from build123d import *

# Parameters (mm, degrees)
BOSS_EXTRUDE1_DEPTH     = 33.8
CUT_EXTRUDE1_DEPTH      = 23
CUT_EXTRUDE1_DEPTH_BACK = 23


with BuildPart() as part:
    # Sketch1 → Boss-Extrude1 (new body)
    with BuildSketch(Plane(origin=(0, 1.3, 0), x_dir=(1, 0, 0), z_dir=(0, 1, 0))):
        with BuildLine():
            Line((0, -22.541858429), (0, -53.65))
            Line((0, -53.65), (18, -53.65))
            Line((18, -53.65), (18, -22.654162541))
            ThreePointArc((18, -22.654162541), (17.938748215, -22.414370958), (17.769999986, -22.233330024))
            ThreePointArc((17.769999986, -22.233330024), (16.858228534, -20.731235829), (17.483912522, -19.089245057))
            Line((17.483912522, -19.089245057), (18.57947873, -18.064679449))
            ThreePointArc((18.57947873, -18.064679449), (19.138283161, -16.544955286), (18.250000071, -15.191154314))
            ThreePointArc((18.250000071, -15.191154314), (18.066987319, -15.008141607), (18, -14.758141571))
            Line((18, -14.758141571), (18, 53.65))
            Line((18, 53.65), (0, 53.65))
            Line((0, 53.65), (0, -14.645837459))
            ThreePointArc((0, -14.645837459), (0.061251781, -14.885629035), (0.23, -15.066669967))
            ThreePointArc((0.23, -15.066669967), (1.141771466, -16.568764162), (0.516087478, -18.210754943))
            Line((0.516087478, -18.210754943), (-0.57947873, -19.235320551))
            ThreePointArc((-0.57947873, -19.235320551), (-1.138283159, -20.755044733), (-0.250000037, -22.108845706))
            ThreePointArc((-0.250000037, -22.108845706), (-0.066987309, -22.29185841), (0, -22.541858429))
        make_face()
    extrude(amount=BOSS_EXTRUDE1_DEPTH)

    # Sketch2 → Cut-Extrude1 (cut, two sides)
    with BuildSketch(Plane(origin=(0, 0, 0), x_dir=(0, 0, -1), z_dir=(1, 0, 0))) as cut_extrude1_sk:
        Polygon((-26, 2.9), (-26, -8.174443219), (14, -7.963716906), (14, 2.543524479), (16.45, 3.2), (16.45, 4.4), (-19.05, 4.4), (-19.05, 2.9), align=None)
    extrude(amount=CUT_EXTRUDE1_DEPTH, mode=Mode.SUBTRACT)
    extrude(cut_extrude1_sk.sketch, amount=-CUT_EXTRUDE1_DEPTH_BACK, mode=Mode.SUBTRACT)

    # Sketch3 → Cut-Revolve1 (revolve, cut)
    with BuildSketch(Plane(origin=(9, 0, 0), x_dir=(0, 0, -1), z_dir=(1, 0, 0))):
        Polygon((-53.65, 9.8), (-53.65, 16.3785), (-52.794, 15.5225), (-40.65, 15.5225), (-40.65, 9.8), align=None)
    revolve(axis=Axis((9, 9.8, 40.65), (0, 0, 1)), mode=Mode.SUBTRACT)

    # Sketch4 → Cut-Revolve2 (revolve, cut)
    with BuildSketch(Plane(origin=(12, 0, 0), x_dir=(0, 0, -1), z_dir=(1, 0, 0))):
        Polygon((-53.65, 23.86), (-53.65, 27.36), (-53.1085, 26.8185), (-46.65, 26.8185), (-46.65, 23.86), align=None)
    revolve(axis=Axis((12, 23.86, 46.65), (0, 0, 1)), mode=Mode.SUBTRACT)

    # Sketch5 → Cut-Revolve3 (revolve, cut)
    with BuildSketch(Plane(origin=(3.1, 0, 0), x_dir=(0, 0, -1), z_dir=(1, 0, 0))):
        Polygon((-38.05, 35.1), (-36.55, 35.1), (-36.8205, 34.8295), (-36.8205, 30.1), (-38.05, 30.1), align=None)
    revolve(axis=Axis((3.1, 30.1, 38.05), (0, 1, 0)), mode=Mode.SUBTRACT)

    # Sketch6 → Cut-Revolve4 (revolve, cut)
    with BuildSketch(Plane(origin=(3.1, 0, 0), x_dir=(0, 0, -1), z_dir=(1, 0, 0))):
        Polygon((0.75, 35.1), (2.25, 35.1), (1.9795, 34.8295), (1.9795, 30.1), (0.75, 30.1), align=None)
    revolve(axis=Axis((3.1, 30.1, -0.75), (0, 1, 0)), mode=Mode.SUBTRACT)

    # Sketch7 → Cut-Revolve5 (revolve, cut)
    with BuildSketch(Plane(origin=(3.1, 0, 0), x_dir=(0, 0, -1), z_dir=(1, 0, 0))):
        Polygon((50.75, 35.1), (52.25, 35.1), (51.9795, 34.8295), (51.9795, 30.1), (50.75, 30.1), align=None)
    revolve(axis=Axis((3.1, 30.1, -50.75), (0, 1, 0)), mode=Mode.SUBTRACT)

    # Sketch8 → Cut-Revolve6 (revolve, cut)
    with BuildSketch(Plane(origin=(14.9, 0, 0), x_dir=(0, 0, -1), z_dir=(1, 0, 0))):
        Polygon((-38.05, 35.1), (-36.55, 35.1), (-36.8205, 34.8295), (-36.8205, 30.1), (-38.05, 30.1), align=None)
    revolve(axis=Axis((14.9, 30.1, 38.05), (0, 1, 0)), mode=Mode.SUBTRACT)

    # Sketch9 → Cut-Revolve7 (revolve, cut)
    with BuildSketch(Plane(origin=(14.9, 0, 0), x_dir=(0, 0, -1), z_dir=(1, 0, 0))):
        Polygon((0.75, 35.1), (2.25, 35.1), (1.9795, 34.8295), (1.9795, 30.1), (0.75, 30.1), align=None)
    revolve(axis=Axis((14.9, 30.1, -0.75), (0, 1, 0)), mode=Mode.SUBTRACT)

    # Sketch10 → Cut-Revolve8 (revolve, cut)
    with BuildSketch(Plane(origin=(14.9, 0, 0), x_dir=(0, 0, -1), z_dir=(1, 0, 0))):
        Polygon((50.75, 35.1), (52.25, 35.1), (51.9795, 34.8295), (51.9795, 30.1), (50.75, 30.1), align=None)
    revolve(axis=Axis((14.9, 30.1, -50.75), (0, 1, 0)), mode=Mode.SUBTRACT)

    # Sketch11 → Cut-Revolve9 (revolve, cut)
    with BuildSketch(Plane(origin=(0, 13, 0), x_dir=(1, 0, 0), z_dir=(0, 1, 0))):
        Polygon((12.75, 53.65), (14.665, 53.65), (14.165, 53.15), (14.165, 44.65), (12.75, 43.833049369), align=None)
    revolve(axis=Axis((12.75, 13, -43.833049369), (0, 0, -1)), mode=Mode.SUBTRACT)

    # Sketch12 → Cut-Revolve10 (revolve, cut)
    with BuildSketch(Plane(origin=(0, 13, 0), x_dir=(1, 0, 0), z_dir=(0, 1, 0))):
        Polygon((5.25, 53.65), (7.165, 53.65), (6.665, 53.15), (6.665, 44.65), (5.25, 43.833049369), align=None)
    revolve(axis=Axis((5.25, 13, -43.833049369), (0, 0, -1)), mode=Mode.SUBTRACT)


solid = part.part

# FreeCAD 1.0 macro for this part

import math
import FreeCAD as App
import Part
import Sketcher
Q = App.Units.Quantity


def add_polygon(sketch, points):
    """Adds a closed chain of lines whose ends are joined by coincident constraints."""
    first, n = sketch.GeometryCount, len(points)
    for a, b in zip(points, points[1:] + points[:1]):
        sketch.addGeometry(Part.LineSegment(App.Vector(*a, 0), App.Vector(*b, 0)), False)
    for i in range(n):
        sketch.addConstraint(Sketcher.Constraint("Coincident", first + i, 2, first + (i + 1) % n, 1))

doc = App.newDocument("Part")
body = doc.addObject("PartDesign::Body", "Body")

# Sketch on XZ plane
sketch1 = body.newObject("Sketcher::SketchObject", "Sketch")
sketch1.AttachmentSupport = (doc.getObject("XZ_Plane"), [""])
sketch1.MapMode = "FlatFace"
sketch1.AttachmentOffset = App.Placement(App.Vector(0, 0, -1.3), App.Rotation())
sketch1.addGeometry(Part.LineSegment(App.Vector(0, 22.54, 0), App.Vector(0, 53.65, 0)), False)
sketch1.addGeometry(Part.LineSegment(App.Vector(0, 53.65, 0), App.Vector(18, 53.65, 0)), False)
sketch1.addGeometry(Part.LineSegment(App.Vector(18, 53.65, 0), App.Vector(18, 22.65, 0)), False)
sketch1.addGeometry(Part.ArcOfCircle(Part.Circle(App.Vector(17.5, 22.65, 0), App.Vector(0, 0, 1), 0.5), math.radians(-57), math.radians(0)), False)
sketch1.addGeometry(Part.ArcOfCircle(Part.Circle(App.Vector(18.85, 20.55, 0), App.Vector(0, 0, 1), 2), math.radians(123), math.radians(227)), False)
sketch1.addGeometry(Part.LineSegment(App.Vector(17.48, 19.09, 0), App.Vector(18.58, 18.06, 0)), False)
sketch1.addGeometry(Part.ArcOfCircle(Part.Circle(App.Vector(17.35, 16.75, 0), App.Vector(0, 0, 1), 1.8), math.radians(-60), math.radians(47)), False)
sketch1.addGeometry(Part.ArcOfCircle(Part.Circle(App.Vector(18.5, 14.76, 0), App.Vector(0, 0, 1), 0.5), math.radians(120), math.radians(180)), False)
sketch1.addGeometry(Part.LineSegment(App.Vector(18, 14.76, 0), App.Vector(18, -53.65, 0)), False)
sketch1.addGeometry(Part.LineSegment(App.Vector(18, -53.65, 0), App.Vector(0, -53.65, 0)), False)
sketch1.addGeometry(Part.LineSegment(App.Vector(0, -53.65, 0), App.Vector(0, 14.65, 0)), False)
sketch1.addGeometry(Part.ArcOfCircle(Part.Circle(App.Vector(0.5, 14.65, 0), App.Vector(0, 0, 1), 0.5), math.radians(123), math.radians(180)), False)
sketch1.addGeometry(Part.ArcOfCircle(Part.Circle(App.Vector(-0.85, 16.75, 0), App.Vector(0, 0, 1), 2), math.radians(-57), math.radians(47)), False)
sketch1.addGeometry(Part.LineSegment(App.Vector(0.52, 18.21, 0), App.Vector(-0.58, 19.24, 0)), False)
sketch1.addGeometry(Part.ArcOfCircle(Part.Circle(App.Vector(0.65, 20.55, 0), App.Vector(0, 0, 1), 1.8), math.radians(120), math.radians(227)), False)
sketch1.addGeometry(Part.ArcOfCircle(Part.Circle(App.Vector(-0.5, 22.54, 0), App.Vector(0, 0, 1), 0.5), math.radians(-60), math.radians(0)), False)
sketch1.addConstraint(Sketcher.Constraint("Coincident", 0, 2, 1, 1))
sketch1.addConstraint(Sketcher.Constraint("Coincident", 1, 2, 2, 1))
sketch1.addConstraint(Sketcher.Constraint("Tangent", 2, 2, 3, 2))
sketch1.addConstraint(Sketcher.Constraint("Tangent", 3, 1, 4, 1))
sketch1.addConstraint(Sketcher.Constraint("Tangent", 4, 2, 5, 1))
sketch1.addConstraint(Sketcher.Constraint("Tangent", 5, 2, 6, 2))
sketch1.addConstraint(Sketcher.Constraint("Tangent", 6, 1, 7, 1))
sketch1.addConstraint(Sketcher.Constraint("Tangent", 7, 2, 8, 1))
sketch1.addConstraint(Sketcher.Constraint("Coincident", 8, 2, 9, 1))
sketch1.addConstraint(Sketcher.Constraint("Coincident", 9, 2, 10, 1))
sketch1.addConstraint(Sketcher.Constraint("Tangent", 10, 2, 11, 2))
sketch1.addConstraint(Sketcher.Constraint("Tangent", 11, 1, 12, 1))
sketch1.addConstraint(Sketcher.Constraint("Tangent", 12, 2, 13, 1))
sketch1.addConstraint(Sketcher.Constraint("Tangent", 13, 2, 14, 2))
sketch1.addConstraint(Sketcher.Constraint("Tangent", 14, 1, 15, 1))
sketch1.addConstraint(Sketcher.Constraint("Tangent", 15, 2, 0, 1))
sketch1.addConstraint(Sketcher.Constraint("Vertical", 0))
sketch1.addConstraint(Sketcher.Constraint("Horizontal", 1))
sketch1.addConstraint(Sketcher.Constraint("Vertical", 2))
sketch1.addConstraint(Sketcher.Constraint("Vertical", 8))
sketch1.addConstraint(Sketcher.Constraint("Horizontal", 9))
sketch1.addConstraint(Sketcher.Constraint("Vertical", 10))
sketch1.addConstraint(Sketcher.Constraint("Equal", 3, 7))
sketch1.addConstraint(Sketcher.Constraint("Equal", 7, 11))
sketch1.addConstraint(Sketcher.Constraint("Equal", 4, 12))
sketch1.addConstraint(Sketcher.Constraint("Equal", 6, 14))
sketch1.addConstraint(Sketcher.Constraint("Equal", 11, 15))
sketch1.addConstraint(Sketcher.Constraint("Symmetric", 0, 2, 9, 2, -1, 1))
sketch1.addConstraint(Sketcher.Constraint("PointOnObject", 0, 2, -2))
sketch1.addConstraint(Sketcher.Constraint("Parallel", 5, 13))
sketch1.addConstraint(Sketcher.Constraint("Horizontal", 6, 3, 12, 3))
sketch1.addConstraint(Sketcher.Constraint("Horizontal", 4, 3, 14, 3))
sketch1.addConstraint(Sketcher.Constraint("Vertical", 2, 2, 7, 2))
sketch1.addConstraint(Sketcher.Constraint("Radius", 4, Q("2 mm")))
sketch1.addConstraint(Sketcher.Constraint("Radius", 3, Q("0.5 mm")))
sketch1.addConstraint(Sketcher.Constraint("Radius", 6, Q("1.8 mm")))
sketch1.addConstraint(Sketcher.Constraint("DistanceX", 1, 1, 1, 2, Q("18 mm")))
sketch1.addConstraint(Sketcher.Constraint("Distance", 5, Q("1.5 mm")))
sketch1.addConstraint(Sketcher.Constraint("DistanceX", 6, 3, 4, 3, Q("1.5 mm")))
sketch1.addConstraint(Sketcher.Constraint("DistanceX", 12, 3, 6, 3, Q("18.2 mm")))
sketch1.addConstraint(Sketcher.Constraint("DistanceY", 14, 3, 0, 2, Q("33.1 mm")))
sketch1.addConstraint(Sketcher.Constraint("DistanceX", 6, 3, 6, 1, Q("0.9 mm")))
sketch1.addConstraint(Sketcher.Constraint("DistanceY", 8, 2, 6, 3, Q("70.4 mm")))
pad1 = body.newObject("PartDesign::Pad", "Pad")
pad1.Profile = sketch1
pad1.Length = 33.8
pad1.Reversed = True

# Sketch on YZ plane
sketch2 = body.newObject("Sketcher::SketchObject", "Sketch001")
sketch2.AttachmentSupport = (doc.getObject("YZ_Plane"), [""])
sketch2.MapMode = "FlatFace"
add_polygon(sketch2, [(2.9, 26), (-8.2, 26), (-8, -14), (2.5, -14), (3.2, -16.4), (4.4, -16.4), (4.4, 19.1), (2.9, 19.1)])  # lines 0-7
sketch2.addConstraint(Sketcher.Constraint("Horizontal", 0))
sketch2.addConstraint(Sketcher.Constraint("Horizontal", 2))
sketch2.addConstraint(Sketcher.Constraint("Horizontal", 4))
sketch2.addConstraint(Sketcher.Constraint("Vertical", 5))
sketch2.addConstraint(Sketcher.Constraint("Horizontal", 6))
sketch2.addConstraint(Sketcher.Constraint("Vertical", 7))
sketch2.addConstraint(Sketcher.Constraint("Angle", 3, Q("-75 deg")))
sketch2.addConstraint(Sketcher.Constraint("DistanceX", 4, 1, 4, 2, Q("1.2 mm")))
sketch2.addConstraint(Sketcher.Constraint("DistanceX", 6, 2, 6, 1, Q("1.5 mm")))
sketch2.addConstraint(Sketcher.Constraint("DistanceY", 5, 1, 5, 2, Q("35.5 mm")))
sketch2.addConstraint(Sketcher.Constraint("DistanceY", -1, 1, 0, 2, Q("26 mm")))
sketch2.addConstraint(Sketcher.Constraint("DistanceY", 1, 2, -1, 1, Q("14 mm")))
sketch2.addConstraint(Sketcher.Constraint("DistanceY", 7, 1, 7, 2, Q("6.95 mm")))
sketch2.addConstraint(Sketcher.Constraint("DistanceX", -1, 1, 3, 2, Q("3.2 mm")))
sketch2.addConstraint(Sketcher.Constraint("DistanceX", 2, 1, 2, 2, Q("10.507241 mm")))
sketch2.addConstraint(Sketcher.Constraint("DistanceX", 0, 2, 0, 1, Q("11.074443 mm")))
pocket1 = body.newObject("PartDesign::Pocket", "Pocket")
pocket1.Profile = sketch2
pocket1.Type = "ThroughAll"
pocket1.Midplane = True

# Sketch on YZ plane
sketch3 = body.newObject("Sketcher::SketchObject", "Sketch002")
sketch3.AttachmentSupport = (doc.getObject("YZ_Plane"), [""])
sketch3.MapMode = "FlatFace"
sketch3.AttachmentOffset = App.Placement(App.Vector(0, 0, 9), App.Rotation())
add_polygon(sketch3, [(16.4, 53.6), (9.8, 53.6), (9.8, 40.6), (15.5, 40.6), (15.5, 52.8)])  # lines 0-4
sketch3.addGeometry(Part.LineSegment(App.Vector(9.8, 40.6, 0), App.Vector(9.8, 53.6, 0)), True)  # axis
sketch3.addConstraint(Sketcher.Constraint("Horizontal", 0))
sketch3.addConstraint(Sketcher.Constraint("Vertical", 1))
sketch3.addConstraint(Sketcher.Constraint("Horizontal", 2))
sketch3.addConstraint(Sketcher.Constraint("Vertical", 3))
sketch3.addConstraint(Sketcher.Constraint("Vertical", 5))
sketch3.addConstraint(Sketcher.Constraint("Coincident", 5, 1, 1, 2))
sketch3.addConstraint(Sketcher.Constraint("Horizontal", 4, 2, 5, 2))
sketch3.addConstraint(Sketcher.Constraint("DistanceY", 1, 2, 1, 1, Q("13 mm")))
sketch3.addConstraint(Sketcher.Constraint("Angle", 4, Q("45 deg")))
sketch3.addConstraint(Sketcher.Constraint("DistanceX", -1, 1, 0, 2, Q("9.8 mm")))
sketch3.addConstraint(Sketcher.Constraint("DistanceY", 3, 1, 3, 2, Q("12.144 mm")))
sketch3.addConstraint(Sketcher.Constraint("DistanceY", -1, 1, 0, 2, Q("53.65 mm")))
sketch3.addConstraint(Sketcher.Constraint("DistanceX", 0, 2, 0, 1, Q("6.5785 mm")))
groove = body.newObject("PartDesign::Groove", "Groove")
groove.Profile = sketch3
groove.ReferenceAxis = (sketch3, ["Axis0"])
groove.Angle = 360

# Sketch on YZ plane
sketch4 = body.newObject("Sketcher::SketchObject", "Sketch003")
sketch4.AttachmentSupport = (doc.getObject("YZ_Plane"), [""])
sketch4.MapMode = "FlatFace"
sketch4.AttachmentOffset = App.Placement(App.Vector(0, 0, 12), App.Rotation())
add_polygon(sketch4, [(27.4, 53.6), (23.9, 53.6), (23.9, 46.6), (26.8, 46.6), (26.8, 53.1)])  # lines 0-4
sketch4.addGeometry(Part.LineSegment(App.Vector(23.9, 46.6, 0), App.Vector(23.9, 53.6, 0)), True)  # axis
sketch4.addConstraint(Sketcher.Constraint("Horizontal", 0))
sketch4.addConstraint(Sketcher.Constraint("Vertical", 1))
sketch4.addConstraint(Sketcher.Constraint("Horizontal", 2))
sketch4.addConstraint(Sketcher.Constraint("Vertical", 3))
sketch4.addConstraint(Sketcher.Constraint("Vertical", 5))
sketch4.addConstraint(Sketcher.Constraint("Coincident", 5, 1, 1, 2))
sketch4.addConstraint(Sketcher.Constraint("Horizontal", 4, 2, 5, 2))
sketch4.addConstraint(Sketcher.Constraint("DistanceY", 1, 2, 1, 1, Q("7 mm")))
sketch4.addConstraint(Sketcher.Constraint("Angle", 4, Q("45 deg")))
sketch4.addConstraint(Sketcher.Constraint("DistanceX", 0, 2, 0, 1, Q("3.5 mm")))
sketch4.addConstraint(Sketcher.Constraint("DistanceX", -1, 1, 0, 2, Q("23.86 mm")))
sketch4.addConstraint(Sketcher.Constraint("DistanceY", -1, 1, 0, 2, Q("53.65 mm")))
sketch4.addConstraint(Sketcher.Constraint("DistanceX", 2, 1, 2, 2, Q("2.9585 mm")))
groove2 = body.newObject("PartDesign::Groove", "Groove001")
groove2.Profile = sketch4
groove2.ReferenceAxis = (sketch4, ["Axis0"])
groove2.Angle = 360

# Sketch on YZ plane
sketch5 = body.newObject("Sketcher::SketchObject", "Sketch004")
sketch5.AttachmentSupport = (doc.getObject("YZ_Plane"), [""])
sketch5.MapMode = "FlatFace"
sketch5.AttachmentOffset = App.Placement(App.Vector(0, 0, 3.1), App.Rotation())
add_polygon(sketch5, [(35.1, 36.55), (35.1, 38.05), (30.1, 38.05), (30.1, 36.82), (34.83, 36.82)])  # lines 0-4
sketch5.addGeometry(Part.LineSegment(App.Vector(30.1, 38.05, 0), App.Vector(35.1, 38.05, 0)), True)  # axis
sketch5.addConstraint(Sketcher.Constraint("Vertical", 0))
sketch5.addConstraint(Sketcher.Constraint("Horizontal", 1))
sketch5.addConstraint(Sketcher.Constraint("Vertical", 2))
sketch5.addConstraint(Sketcher.Constraint("Horizontal", 3))
sketch5.addConstraint(Sketcher.Constraint("Horizontal", 5))
sketch5.addConstraint(Sketcher.Constraint("Coincident", 5, 1, 1, 2))
sketch5.addConstraint(Sketcher.Constraint("Vertical", 4, 2, 5, 2))
sketch5.addConstraint(Sketcher.Constraint("DistanceX", 1, 2, 1, 1, Q("5 mm")))
sketch5.addConstraint(Sketcher.Constraint("Angle", 4, Q("-45 deg")))
sketch5.addConstraint(Sketcher.Constraint("DistanceY", 0, 1, 0, 2, Q("1.5 mm")))
sketch5.addConstraint(Sketcher.Constraint("DistanceX", -1, 1, 0, 2, Q("35.1 mm")))
sketch5.addConstraint(Sketcher.Constraint("DistanceY", -1, 1, 0, 2, Q("38.05 mm")))
sketch5.addConstraint(Sketcher.Constraint("DistanceX", 3, 1, 3, 2, Q("4.7295 mm")))
groove3 = body.newObject("PartDesign::Groove", "Groove002")
groove3.Profile = sketch5
groove3.ReferenceAxis = (sketch5, ["Axis0"])
groove3.Angle = 360

# Sketch on YZ plane
sketch6 = body.newObject("Sketcher::SketchObject", "Sketch005")
sketch6.AttachmentSupport = (doc.getObject("YZ_Plane"), [""])
sketch6.MapMode = "FlatFace"
sketch6.AttachmentOffset = App.Placement(App.Vector(0, 0, 3.1), App.Rotation())
add_polygon(sketch6, [(35.1, -2.25), (35.1, -0.75), (30.1, -0.75), (30.1, -1.98), (34.83, -1.98)])  # lines 0-4
sketch6.addGeometry(Part.LineSegment(App.Vector(30.1, -0.75, 0), App.Vector(35.1, -0.75, 0)), True)  # axis
sketch6.addConstraint(Sketcher.Constraint("Vertical", 0))
sketch6.addConstraint(Sketcher.Constraint("Horizontal", 1))
sketch6.addConstraint(Sketcher.Constraint("Vertical", 2))
sketch6.addConstraint(Sketcher.Constraint("Horizontal", 3))
sketch6.addConstraint(Sketcher.Constraint("Horizontal", 5))
sketch6.addConstraint(Sketcher.Constraint("Coincident", 5, 1, 1, 2))
sketch6.addConstraint(Sketcher.Constraint("Vertical", 4, 2, 5, 2))
sketch6.addConstraint(Sketcher.Constraint("DistanceX", 1, 2, 1, 1, Q("5 mm")))
sketch6.addConstraint(Sketcher.Constraint("Angle", 4, Q("-45 deg")))
sketch6.addConstraint(Sketcher.Constraint("DistanceY", 0, 1, 0, 2, Q("1.5 mm")))
sketch6.addConstraint(Sketcher.Constraint("DistanceX", -1, 1, 0, 2, Q("35.1 mm")))
sketch6.addConstraint(Sketcher.Constraint("DistanceY", 0, 2, -1, 1, Q("0.75 mm")))
sketch6.addConstraint(Sketcher.Constraint("DistanceX", 3, 1, 3, 2, Q("4.7295 mm")))
groove4 = body.newObject("PartDesign::Groove", "Groove003")
groove4.Profile = sketch6
groove4.ReferenceAxis = (sketch6, ["Axis0"])
groove4.Angle = 360

# Sketch on YZ plane
sketch7 = body.newObject("Sketcher::SketchObject", "Sketch006")
sketch7.AttachmentSupport = (doc.getObject("YZ_Plane"), [""])
sketch7.MapMode = "FlatFace"
sketch7.AttachmentOffset = App.Placement(App.Vector(0, 0, 3.1), App.Rotation())
add_polygon(sketch7, [(35.1, -52.25), (35.1, -50.75), (30.1, -50.75), (30.1, -51.98), (34.83, -51.98)])  # lines 0-4
sketch7.addGeometry(Part.LineSegment(App.Vector(30.1, -50.75, 0), App.Vector(35.1, -50.75, 0)), True)  # axis
sketch7.addConstraint(Sketcher.Constraint("Vertical", 0))
sketch7.addConstraint(Sketcher.Constraint("Horizontal", 1))
sketch7.addConstraint(Sketcher.Constraint("Vertical", 2))
sketch7.addConstraint(Sketcher.Constraint("Horizontal", 3))
sketch7.addConstraint(Sketcher.Constraint("Horizontal", 5))
sketch7.addConstraint(Sketcher.Constraint("Coincident", 5, 1, 1, 2))
sketch7.addConstraint(Sketcher.Constraint("Vertical", 4, 2, 5, 2))
sketch7.addConstraint(Sketcher.Constraint("DistanceX", 1, 2, 1, 1, Q("5 mm")))
sketch7.addConstraint(Sketcher.Constraint("Angle", 4, Q("-45 deg")))
sketch7.addConstraint(Sketcher.Constraint("DistanceY", 0, 1, 0, 2, Q("1.5 mm")))
sketch7.addConstraint(Sketcher.Constraint("DistanceX", -1, 1, 0, 2, Q("35.1 mm")))
sketch7.addConstraint(Sketcher.Constraint("DistanceY", 0, 2, -1, 1, Q("50.75 mm")))
sketch7.addConstraint(Sketcher.Constraint("DistanceX", 3, 1, 3, 2, Q("4.7295 mm")))
groove5 = body.newObject("PartDesign::Groove", "Groove004")
groove5.Profile = sketch7
groove5.ReferenceAxis = (sketch7, ["Axis0"])
groove5.Angle = 360

# Sketch on YZ plane
sketch8 = body.newObject("Sketcher::SketchObject", "Sketch007")
sketch8.AttachmentSupport = (doc.getObject("YZ_Plane"), [""])
sketch8.MapMode = "FlatFace"
sketch8.AttachmentOffset = App.Placement(App.Vector(0, 0, 14.9), App.Rotation())
add_polygon(sketch8, [(35.1, 36.55), (35.1, 38.05), (30.1, 38.05), (30.1, 36.82), (34.83, 36.82)])  # lines 0-4
sketch8.addGeometry(Part.LineSegment(App.Vector(30.1, 38.05, 0), App.Vector(35.1, 38.05, 0)), True)  # axis
sketch8.addConstraint(Sketcher.Constraint("Vertical", 0))
sketch8.addConstraint(Sketcher.Constraint("Horizontal", 1))
sketch8.addConstraint(Sketcher.Constraint("Vertical", 2))
sketch8.addConstraint(Sketcher.Constraint("Horizontal", 3))
sketch8.addConstraint(Sketcher.Constraint("Horizontal", 5))
sketch8.addConstraint(Sketcher.Constraint("Coincident", 5, 1, 1, 2))
sketch8.addConstraint(Sketcher.Constraint("Vertical", 4, 2, 5, 2))
sketch8.addConstraint(Sketcher.Constraint("DistanceX", 1, 2, 1, 1, Q("5 mm")))
sketch8.addConstraint(Sketcher.Constraint("Angle", 4, Q("-45 deg")))
sketch8.addConstraint(Sketcher.Constraint("DistanceY", 0, 1, 0, 2, Q("1.5 mm")))
sketch8.addConstraint(Sketcher.Constraint("DistanceX", -1, 1, 0, 2, Q("35.1 mm")))
sketch8.addConstraint(Sketcher.Constraint("DistanceY", -1, 1, 0, 2, Q("38.05 mm")))
sketch8.addConstraint(Sketcher.Constraint("DistanceX", 3, 1, 3, 2, Q("4.7295 mm")))
groove6 = body.newObject("PartDesign::Groove", "Groove005")
groove6.Profile = sketch8
groove6.ReferenceAxis = (sketch8, ["Axis0"])
groove6.Angle = 360

# Sketch on YZ plane
sketch9 = body.newObject("Sketcher::SketchObject", "Sketch008")
sketch9.AttachmentSupport = (doc.getObject("YZ_Plane"), [""])
sketch9.MapMode = "FlatFace"
sketch9.AttachmentOffset = App.Placement(App.Vector(0, 0, 14.9), App.Rotation())
add_polygon(sketch9, [(35.1, -2.25), (35.1, -0.75), (30.1, -0.75), (30.1, -1.98), (34.83, -1.98)])  # lines 0-4
sketch9.addGeometry(Part.LineSegment(App.Vector(30.1, -0.75, 0), App.Vector(35.1, -0.75, 0)), True)  # axis
sketch9.addConstraint(Sketcher.Constraint("Vertical", 0))
sketch9.addConstraint(Sketcher.Constraint("Horizontal", 1))
sketch9.addConstraint(Sketcher.Constraint("Vertical", 2))
sketch9.addConstraint(Sketcher.Constraint("Horizontal", 3))
sketch9.addConstraint(Sketcher.Constraint("Horizontal", 5))
sketch9.addConstraint(Sketcher.Constraint("Coincident", 5, 1, 1, 2))
sketch9.addConstraint(Sketcher.Constraint("Vertical", 4, 2, 5, 2))
sketch9.addConstraint(Sketcher.Constraint("DistanceX", 1, 2, 1, 1, Q("5 mm")))
sketch9.addConstraint(Sketcher.Constraint("Angle", 4, Q("-45 deg")))
sketch9.addConstraint(Sketcher.Constraint("DistanceY", 0, 1, 0, 2, Q("1.5 mm")))
sketch9.addConstraint(Sketcher.Constraint("DistanceX", -1, 1, 0, 2, Q("35.1 mm")))
sketch9.addConstraint(Sketcher.Constraint("DistanceY", 0, 2, -1, 1, Q("0.75 mm")))
sketch9.addConstraint(Sketcher.Constraint("DistanceX", 3, 1, 3, 2, Q("4.7295 mm")))
groove7 = body.newObject("PartDesign::Groove", "Groove006")
groove7.Profile = sketch9
groove7.ReferenceAxis = (sketch9, ["Axis0"])
groove7.Angle = 360

# Sketch on YZ plane
sketch10 = body.newObject("Sketcher::SketchObject", "Sketch009")
sketch10.AttachmentSupport = (doc.getObject("YZ_Plane"), [""])
sketch10.MapMode = "FlatFace"
sketch10.AttachmentOffset = App.Placement(App.Vector(0, 0, 14.9), App.Rotation())
add_polygon(sketch10, [(35.1, -52.25), (35.1, -50.75), (30.1, -50.75), (30.1, -51.98), (34.83, -51.98)])  # lines 0-4
sketch10.addGeometry(Part.LineSegment(App.Vector(30.1, -50.75, 0), App.Vector(35.1, -50.75, 0)), True)  # axis
sketch10.addConstraint(Sketcher.Constraint("Vertical", 0))
sketch10.addConstraint(Sketcher.Constraint("Horizontal", 1))
sketch10.addConstraint(Sketcher.Constraint("Vertical", 2))
sketch10.addConstraint(Sketcher.Constraint("Horizontal", 3))
sketch10.addConstraint(Sketcher.Constraint("Horizontal", 5))
sketch10.addConstraint(Sketcher.Constraint("Coincident", 5, 1, 1, 2))
sketch10.addConstraint(Sketcher.Constraint("Vertical", 4, 2, 5, 2))
sketch10.addConstraint(Sketcher.Constraint("DistanceX", 1, 2, 1, 1, Q("5 mm")))
sketch10.addConstraint(Sketcher.Constraint("Angle", 4, Q("-45 deg")))
sketch10.addConstraint(Sketcher.Constraint("DistanceY", 0, 1, 0, 2, Q("1.5 mm")))
sketch10.addConstraint(Sketcher.Constraint("DistanceX", -1, 1, 0, 2, Q("35.1 mm")))
sketch10.addConstraint(Sketcher.Constraint("DistanceY", 0, 2, -1, 1, Q("50.75 mm")))
sketch10.addConstraint(Sketcher.Constraint("DistanceX", 3, 1, 3, 2, Q("4.7295 mm")))
groove8 = body.newObject("PartDesign::Groove", "Groove007")
groove8.Profile = sketch10
groove8.ReferenceAxis = (sketch10, ["Axis0"])
groove8.Angle = 360

# Sketch on XZ plane
sketch11 = body.newObject("Sketcher::SketchObject", "Sketch010")
sketch11.AttachmentSupport = (doc.getObject("XZ_Plane"), [""])
sketch11.MapMode = "FlatFace"
sketch11.AttachmentOffset = App.Placement(App.Vector(0, 0, -13), App.Rotation())
add_polygon(sketch11, [(14.7, -53.6), (12.8, -53.6), (12.8, -43.8), (14.2, -44.6), (14.2, -53.1)])  # lines 0-4
sketch11.addGeometry(Part.LineSegment(App.Vector(12.8, -43.8, 0), App.Vector(12.8, -53.6, 0)), True)  # axis
sketch11.addConstraint(Sketcher.Constraint("Horizontal", 0))
sketch11.addConstraint(Sketcher.Constraint("Vertical", 1))
sketch11.addConstraint(Sketcher.Constraint("Vertical", 3))
sketch11.addConstraint(Sketcher.Constraint("Vertical", 5))
sketch11.addConstraint(Sketcher.Constraint("Coincident", 5, 1, 1, 2))
sketch11.addConstraint(Sketcher.Constraint("Horizontal", 4, 2, 5, 2))
sketch11.addConstraint(Sketcher.Constraint("Angle", 2, Q("-30 deg")))
sketch11.addConstraint(Sketcher.Constraint("Angle", 4, Q("-45 deg")))
sketch11.addConstraint(Sketcher.Constraint("DistanceY", 3, 2, 3, 1, Q("8.5 mm")))
sketch11.addConstraint(Sketcher.Constraint("DistanceY", 0, 2, 2, 2, Q("9 mm")))
sketch11.addConstraint(Sketcher.Constraint("DistanceX", 0, 2, 0, 1, Q("1.915 mm")))
sketch11.addConstraint(Sketcher.Constraint("DistanceX", -1, 1, 0, 2, Q("12.75 mm")))
sketch11.addConstraint(Sketcher.Constraint("DistanceY", 0, 2, -1, 1, Q("53.65 mm")))
groove9 = body.newObject("PartDesign::Groove", "Groove008")
groove9.Profile = sketch11
groove9.ReferenceAxis = (sketch11, ["Axis0"])
groove9.Angle = 360

# Sketch on XZ plane
sketch12 = body.newObject("Sketcher::SketchObject", "Sketch011")
sketch12.AttachmentSupport = (doc.getObject("XZ_Plane"), [""])
sketch12.MapMode = "FlatFace"
sketch12.AttachmentOffset = App.Placement(App.Vector(0, 0, -13), App.Rotation())
add_polygon(sketch12, [(7.2, -53.6), (5.2, -53.6), (5.2, -43.8), (6.7, -44.6), (6.7, -53.1)])  # lines 0-4
sketch12.addGeometry(Part.LineSegment(App.Vector(5.2, -43.8, 0), App.Vector(5.2, -53.6, 0)), True)  # axis
sketch12.addConstraint(Sketcher.Constraint("Horizontal", 0))
sketch12.addConstraint(Sketcher.Constraint("Vertical", 1))
sketch12.addConstraint(Sketcher.Constraint("Vertical", 3))
sketch12.addConstraint(Sketcher.Constraint("Vertical", 5))
sketch12.addConstraint(Sketcher.Constraint("Coincident", 5, 1, 1, 2))
sketch12.addConstraint(Sketcher.Constraint("Horizontal", 4, 2, 5, 2))
sketch12.addConstraint(Sketcher.Constraint("Angle", 2, Q("-30 deg")))
sketch12.addConstraint(Sketcher.Constraint("Angle", 4, Q("-45 deg")))
sketch12.addConstraint(Sketcher.Constraint("DistanceY", 3, 2, 3, 1, Q("8.5 mm")))
sketch12.addConstraint(Sketcher.Constraint("DistanceY", 0, 2, 2, 2, Q("9 mm")))
sketch12.addConstraint(Sketcher.Constraint("DistanceX", 0, 2, 0, 1, Q("1.915 mm")))
sketch12.addConstraint(Sketcher.Constraint("DistanceX", -1, 1, 0, 2, Q("5.25 mm")))
sketch12.addConstraint(Sketcher.Constraint("DistanceY", 0, 2, -1, 1, Q("53.65 mm")))
groove10 = body.newObject("PartDesign::Groove", "Groove009")
groove10.Profile = sketch12
groove10.ReferenceAxis = (sketch12, ["Axis0"])
groove10.Angle = 360

doc.recompute()
